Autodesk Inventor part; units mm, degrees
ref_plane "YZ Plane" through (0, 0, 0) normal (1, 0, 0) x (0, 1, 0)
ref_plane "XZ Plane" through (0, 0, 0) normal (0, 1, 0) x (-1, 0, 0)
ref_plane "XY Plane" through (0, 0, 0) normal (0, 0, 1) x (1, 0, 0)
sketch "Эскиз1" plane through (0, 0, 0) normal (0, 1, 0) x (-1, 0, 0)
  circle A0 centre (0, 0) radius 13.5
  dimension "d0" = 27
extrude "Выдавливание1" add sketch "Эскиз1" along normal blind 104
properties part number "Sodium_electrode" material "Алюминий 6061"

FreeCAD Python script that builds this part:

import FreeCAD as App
import Part
import Sketcher
Q = App.Units.Quantity

doc = App.newDocument("Part")
params = doc.addObject("Spreadsheet::Sheet", "Params")
for row, (alias, value) in enumerate([
    ("sketch1_diameter", "1.063 in"),
    ("pad1_length", "4.0944882 in"),
], start=1):
    params.set(f"A{row}", alias)
    params.set(f"B{row}", "=" + value)
    params.setAlias(f"B{row}", alias)

body = doc.addObject("PartDesign::Body", "Body")

# Sketch on XZ plane
sketch1 = body.newObject("Sketcher::SketchObject", "Sketch")
sketch1.AttachmentSupport = (doc.getObject("XZ_Plane"), [""])
sketch1.MapMode = "FlatFace"
sketch1.addGeometry(Part.Circle(App.Vector(0, 0, 0), App.Vector(0, 0, 1), 14), False)
sketch1.addConstraint([
    Sketcher.Constraint("Coincident", 0, 3, -1, 1),
    Sketcher.Constraint("Diameter", 0, Q("1.063 in")),
])
sketch1.setExpression("Constraints[1]", "Params.sketch1_diameter")
pad1 = body.newObject("PartDesign::Pad", "Pad")
pad1.Profile = sketch1
pad1.setExpression("Length", "Params.pad1_length")
pad1.Reversed = True

doc.recompute()
